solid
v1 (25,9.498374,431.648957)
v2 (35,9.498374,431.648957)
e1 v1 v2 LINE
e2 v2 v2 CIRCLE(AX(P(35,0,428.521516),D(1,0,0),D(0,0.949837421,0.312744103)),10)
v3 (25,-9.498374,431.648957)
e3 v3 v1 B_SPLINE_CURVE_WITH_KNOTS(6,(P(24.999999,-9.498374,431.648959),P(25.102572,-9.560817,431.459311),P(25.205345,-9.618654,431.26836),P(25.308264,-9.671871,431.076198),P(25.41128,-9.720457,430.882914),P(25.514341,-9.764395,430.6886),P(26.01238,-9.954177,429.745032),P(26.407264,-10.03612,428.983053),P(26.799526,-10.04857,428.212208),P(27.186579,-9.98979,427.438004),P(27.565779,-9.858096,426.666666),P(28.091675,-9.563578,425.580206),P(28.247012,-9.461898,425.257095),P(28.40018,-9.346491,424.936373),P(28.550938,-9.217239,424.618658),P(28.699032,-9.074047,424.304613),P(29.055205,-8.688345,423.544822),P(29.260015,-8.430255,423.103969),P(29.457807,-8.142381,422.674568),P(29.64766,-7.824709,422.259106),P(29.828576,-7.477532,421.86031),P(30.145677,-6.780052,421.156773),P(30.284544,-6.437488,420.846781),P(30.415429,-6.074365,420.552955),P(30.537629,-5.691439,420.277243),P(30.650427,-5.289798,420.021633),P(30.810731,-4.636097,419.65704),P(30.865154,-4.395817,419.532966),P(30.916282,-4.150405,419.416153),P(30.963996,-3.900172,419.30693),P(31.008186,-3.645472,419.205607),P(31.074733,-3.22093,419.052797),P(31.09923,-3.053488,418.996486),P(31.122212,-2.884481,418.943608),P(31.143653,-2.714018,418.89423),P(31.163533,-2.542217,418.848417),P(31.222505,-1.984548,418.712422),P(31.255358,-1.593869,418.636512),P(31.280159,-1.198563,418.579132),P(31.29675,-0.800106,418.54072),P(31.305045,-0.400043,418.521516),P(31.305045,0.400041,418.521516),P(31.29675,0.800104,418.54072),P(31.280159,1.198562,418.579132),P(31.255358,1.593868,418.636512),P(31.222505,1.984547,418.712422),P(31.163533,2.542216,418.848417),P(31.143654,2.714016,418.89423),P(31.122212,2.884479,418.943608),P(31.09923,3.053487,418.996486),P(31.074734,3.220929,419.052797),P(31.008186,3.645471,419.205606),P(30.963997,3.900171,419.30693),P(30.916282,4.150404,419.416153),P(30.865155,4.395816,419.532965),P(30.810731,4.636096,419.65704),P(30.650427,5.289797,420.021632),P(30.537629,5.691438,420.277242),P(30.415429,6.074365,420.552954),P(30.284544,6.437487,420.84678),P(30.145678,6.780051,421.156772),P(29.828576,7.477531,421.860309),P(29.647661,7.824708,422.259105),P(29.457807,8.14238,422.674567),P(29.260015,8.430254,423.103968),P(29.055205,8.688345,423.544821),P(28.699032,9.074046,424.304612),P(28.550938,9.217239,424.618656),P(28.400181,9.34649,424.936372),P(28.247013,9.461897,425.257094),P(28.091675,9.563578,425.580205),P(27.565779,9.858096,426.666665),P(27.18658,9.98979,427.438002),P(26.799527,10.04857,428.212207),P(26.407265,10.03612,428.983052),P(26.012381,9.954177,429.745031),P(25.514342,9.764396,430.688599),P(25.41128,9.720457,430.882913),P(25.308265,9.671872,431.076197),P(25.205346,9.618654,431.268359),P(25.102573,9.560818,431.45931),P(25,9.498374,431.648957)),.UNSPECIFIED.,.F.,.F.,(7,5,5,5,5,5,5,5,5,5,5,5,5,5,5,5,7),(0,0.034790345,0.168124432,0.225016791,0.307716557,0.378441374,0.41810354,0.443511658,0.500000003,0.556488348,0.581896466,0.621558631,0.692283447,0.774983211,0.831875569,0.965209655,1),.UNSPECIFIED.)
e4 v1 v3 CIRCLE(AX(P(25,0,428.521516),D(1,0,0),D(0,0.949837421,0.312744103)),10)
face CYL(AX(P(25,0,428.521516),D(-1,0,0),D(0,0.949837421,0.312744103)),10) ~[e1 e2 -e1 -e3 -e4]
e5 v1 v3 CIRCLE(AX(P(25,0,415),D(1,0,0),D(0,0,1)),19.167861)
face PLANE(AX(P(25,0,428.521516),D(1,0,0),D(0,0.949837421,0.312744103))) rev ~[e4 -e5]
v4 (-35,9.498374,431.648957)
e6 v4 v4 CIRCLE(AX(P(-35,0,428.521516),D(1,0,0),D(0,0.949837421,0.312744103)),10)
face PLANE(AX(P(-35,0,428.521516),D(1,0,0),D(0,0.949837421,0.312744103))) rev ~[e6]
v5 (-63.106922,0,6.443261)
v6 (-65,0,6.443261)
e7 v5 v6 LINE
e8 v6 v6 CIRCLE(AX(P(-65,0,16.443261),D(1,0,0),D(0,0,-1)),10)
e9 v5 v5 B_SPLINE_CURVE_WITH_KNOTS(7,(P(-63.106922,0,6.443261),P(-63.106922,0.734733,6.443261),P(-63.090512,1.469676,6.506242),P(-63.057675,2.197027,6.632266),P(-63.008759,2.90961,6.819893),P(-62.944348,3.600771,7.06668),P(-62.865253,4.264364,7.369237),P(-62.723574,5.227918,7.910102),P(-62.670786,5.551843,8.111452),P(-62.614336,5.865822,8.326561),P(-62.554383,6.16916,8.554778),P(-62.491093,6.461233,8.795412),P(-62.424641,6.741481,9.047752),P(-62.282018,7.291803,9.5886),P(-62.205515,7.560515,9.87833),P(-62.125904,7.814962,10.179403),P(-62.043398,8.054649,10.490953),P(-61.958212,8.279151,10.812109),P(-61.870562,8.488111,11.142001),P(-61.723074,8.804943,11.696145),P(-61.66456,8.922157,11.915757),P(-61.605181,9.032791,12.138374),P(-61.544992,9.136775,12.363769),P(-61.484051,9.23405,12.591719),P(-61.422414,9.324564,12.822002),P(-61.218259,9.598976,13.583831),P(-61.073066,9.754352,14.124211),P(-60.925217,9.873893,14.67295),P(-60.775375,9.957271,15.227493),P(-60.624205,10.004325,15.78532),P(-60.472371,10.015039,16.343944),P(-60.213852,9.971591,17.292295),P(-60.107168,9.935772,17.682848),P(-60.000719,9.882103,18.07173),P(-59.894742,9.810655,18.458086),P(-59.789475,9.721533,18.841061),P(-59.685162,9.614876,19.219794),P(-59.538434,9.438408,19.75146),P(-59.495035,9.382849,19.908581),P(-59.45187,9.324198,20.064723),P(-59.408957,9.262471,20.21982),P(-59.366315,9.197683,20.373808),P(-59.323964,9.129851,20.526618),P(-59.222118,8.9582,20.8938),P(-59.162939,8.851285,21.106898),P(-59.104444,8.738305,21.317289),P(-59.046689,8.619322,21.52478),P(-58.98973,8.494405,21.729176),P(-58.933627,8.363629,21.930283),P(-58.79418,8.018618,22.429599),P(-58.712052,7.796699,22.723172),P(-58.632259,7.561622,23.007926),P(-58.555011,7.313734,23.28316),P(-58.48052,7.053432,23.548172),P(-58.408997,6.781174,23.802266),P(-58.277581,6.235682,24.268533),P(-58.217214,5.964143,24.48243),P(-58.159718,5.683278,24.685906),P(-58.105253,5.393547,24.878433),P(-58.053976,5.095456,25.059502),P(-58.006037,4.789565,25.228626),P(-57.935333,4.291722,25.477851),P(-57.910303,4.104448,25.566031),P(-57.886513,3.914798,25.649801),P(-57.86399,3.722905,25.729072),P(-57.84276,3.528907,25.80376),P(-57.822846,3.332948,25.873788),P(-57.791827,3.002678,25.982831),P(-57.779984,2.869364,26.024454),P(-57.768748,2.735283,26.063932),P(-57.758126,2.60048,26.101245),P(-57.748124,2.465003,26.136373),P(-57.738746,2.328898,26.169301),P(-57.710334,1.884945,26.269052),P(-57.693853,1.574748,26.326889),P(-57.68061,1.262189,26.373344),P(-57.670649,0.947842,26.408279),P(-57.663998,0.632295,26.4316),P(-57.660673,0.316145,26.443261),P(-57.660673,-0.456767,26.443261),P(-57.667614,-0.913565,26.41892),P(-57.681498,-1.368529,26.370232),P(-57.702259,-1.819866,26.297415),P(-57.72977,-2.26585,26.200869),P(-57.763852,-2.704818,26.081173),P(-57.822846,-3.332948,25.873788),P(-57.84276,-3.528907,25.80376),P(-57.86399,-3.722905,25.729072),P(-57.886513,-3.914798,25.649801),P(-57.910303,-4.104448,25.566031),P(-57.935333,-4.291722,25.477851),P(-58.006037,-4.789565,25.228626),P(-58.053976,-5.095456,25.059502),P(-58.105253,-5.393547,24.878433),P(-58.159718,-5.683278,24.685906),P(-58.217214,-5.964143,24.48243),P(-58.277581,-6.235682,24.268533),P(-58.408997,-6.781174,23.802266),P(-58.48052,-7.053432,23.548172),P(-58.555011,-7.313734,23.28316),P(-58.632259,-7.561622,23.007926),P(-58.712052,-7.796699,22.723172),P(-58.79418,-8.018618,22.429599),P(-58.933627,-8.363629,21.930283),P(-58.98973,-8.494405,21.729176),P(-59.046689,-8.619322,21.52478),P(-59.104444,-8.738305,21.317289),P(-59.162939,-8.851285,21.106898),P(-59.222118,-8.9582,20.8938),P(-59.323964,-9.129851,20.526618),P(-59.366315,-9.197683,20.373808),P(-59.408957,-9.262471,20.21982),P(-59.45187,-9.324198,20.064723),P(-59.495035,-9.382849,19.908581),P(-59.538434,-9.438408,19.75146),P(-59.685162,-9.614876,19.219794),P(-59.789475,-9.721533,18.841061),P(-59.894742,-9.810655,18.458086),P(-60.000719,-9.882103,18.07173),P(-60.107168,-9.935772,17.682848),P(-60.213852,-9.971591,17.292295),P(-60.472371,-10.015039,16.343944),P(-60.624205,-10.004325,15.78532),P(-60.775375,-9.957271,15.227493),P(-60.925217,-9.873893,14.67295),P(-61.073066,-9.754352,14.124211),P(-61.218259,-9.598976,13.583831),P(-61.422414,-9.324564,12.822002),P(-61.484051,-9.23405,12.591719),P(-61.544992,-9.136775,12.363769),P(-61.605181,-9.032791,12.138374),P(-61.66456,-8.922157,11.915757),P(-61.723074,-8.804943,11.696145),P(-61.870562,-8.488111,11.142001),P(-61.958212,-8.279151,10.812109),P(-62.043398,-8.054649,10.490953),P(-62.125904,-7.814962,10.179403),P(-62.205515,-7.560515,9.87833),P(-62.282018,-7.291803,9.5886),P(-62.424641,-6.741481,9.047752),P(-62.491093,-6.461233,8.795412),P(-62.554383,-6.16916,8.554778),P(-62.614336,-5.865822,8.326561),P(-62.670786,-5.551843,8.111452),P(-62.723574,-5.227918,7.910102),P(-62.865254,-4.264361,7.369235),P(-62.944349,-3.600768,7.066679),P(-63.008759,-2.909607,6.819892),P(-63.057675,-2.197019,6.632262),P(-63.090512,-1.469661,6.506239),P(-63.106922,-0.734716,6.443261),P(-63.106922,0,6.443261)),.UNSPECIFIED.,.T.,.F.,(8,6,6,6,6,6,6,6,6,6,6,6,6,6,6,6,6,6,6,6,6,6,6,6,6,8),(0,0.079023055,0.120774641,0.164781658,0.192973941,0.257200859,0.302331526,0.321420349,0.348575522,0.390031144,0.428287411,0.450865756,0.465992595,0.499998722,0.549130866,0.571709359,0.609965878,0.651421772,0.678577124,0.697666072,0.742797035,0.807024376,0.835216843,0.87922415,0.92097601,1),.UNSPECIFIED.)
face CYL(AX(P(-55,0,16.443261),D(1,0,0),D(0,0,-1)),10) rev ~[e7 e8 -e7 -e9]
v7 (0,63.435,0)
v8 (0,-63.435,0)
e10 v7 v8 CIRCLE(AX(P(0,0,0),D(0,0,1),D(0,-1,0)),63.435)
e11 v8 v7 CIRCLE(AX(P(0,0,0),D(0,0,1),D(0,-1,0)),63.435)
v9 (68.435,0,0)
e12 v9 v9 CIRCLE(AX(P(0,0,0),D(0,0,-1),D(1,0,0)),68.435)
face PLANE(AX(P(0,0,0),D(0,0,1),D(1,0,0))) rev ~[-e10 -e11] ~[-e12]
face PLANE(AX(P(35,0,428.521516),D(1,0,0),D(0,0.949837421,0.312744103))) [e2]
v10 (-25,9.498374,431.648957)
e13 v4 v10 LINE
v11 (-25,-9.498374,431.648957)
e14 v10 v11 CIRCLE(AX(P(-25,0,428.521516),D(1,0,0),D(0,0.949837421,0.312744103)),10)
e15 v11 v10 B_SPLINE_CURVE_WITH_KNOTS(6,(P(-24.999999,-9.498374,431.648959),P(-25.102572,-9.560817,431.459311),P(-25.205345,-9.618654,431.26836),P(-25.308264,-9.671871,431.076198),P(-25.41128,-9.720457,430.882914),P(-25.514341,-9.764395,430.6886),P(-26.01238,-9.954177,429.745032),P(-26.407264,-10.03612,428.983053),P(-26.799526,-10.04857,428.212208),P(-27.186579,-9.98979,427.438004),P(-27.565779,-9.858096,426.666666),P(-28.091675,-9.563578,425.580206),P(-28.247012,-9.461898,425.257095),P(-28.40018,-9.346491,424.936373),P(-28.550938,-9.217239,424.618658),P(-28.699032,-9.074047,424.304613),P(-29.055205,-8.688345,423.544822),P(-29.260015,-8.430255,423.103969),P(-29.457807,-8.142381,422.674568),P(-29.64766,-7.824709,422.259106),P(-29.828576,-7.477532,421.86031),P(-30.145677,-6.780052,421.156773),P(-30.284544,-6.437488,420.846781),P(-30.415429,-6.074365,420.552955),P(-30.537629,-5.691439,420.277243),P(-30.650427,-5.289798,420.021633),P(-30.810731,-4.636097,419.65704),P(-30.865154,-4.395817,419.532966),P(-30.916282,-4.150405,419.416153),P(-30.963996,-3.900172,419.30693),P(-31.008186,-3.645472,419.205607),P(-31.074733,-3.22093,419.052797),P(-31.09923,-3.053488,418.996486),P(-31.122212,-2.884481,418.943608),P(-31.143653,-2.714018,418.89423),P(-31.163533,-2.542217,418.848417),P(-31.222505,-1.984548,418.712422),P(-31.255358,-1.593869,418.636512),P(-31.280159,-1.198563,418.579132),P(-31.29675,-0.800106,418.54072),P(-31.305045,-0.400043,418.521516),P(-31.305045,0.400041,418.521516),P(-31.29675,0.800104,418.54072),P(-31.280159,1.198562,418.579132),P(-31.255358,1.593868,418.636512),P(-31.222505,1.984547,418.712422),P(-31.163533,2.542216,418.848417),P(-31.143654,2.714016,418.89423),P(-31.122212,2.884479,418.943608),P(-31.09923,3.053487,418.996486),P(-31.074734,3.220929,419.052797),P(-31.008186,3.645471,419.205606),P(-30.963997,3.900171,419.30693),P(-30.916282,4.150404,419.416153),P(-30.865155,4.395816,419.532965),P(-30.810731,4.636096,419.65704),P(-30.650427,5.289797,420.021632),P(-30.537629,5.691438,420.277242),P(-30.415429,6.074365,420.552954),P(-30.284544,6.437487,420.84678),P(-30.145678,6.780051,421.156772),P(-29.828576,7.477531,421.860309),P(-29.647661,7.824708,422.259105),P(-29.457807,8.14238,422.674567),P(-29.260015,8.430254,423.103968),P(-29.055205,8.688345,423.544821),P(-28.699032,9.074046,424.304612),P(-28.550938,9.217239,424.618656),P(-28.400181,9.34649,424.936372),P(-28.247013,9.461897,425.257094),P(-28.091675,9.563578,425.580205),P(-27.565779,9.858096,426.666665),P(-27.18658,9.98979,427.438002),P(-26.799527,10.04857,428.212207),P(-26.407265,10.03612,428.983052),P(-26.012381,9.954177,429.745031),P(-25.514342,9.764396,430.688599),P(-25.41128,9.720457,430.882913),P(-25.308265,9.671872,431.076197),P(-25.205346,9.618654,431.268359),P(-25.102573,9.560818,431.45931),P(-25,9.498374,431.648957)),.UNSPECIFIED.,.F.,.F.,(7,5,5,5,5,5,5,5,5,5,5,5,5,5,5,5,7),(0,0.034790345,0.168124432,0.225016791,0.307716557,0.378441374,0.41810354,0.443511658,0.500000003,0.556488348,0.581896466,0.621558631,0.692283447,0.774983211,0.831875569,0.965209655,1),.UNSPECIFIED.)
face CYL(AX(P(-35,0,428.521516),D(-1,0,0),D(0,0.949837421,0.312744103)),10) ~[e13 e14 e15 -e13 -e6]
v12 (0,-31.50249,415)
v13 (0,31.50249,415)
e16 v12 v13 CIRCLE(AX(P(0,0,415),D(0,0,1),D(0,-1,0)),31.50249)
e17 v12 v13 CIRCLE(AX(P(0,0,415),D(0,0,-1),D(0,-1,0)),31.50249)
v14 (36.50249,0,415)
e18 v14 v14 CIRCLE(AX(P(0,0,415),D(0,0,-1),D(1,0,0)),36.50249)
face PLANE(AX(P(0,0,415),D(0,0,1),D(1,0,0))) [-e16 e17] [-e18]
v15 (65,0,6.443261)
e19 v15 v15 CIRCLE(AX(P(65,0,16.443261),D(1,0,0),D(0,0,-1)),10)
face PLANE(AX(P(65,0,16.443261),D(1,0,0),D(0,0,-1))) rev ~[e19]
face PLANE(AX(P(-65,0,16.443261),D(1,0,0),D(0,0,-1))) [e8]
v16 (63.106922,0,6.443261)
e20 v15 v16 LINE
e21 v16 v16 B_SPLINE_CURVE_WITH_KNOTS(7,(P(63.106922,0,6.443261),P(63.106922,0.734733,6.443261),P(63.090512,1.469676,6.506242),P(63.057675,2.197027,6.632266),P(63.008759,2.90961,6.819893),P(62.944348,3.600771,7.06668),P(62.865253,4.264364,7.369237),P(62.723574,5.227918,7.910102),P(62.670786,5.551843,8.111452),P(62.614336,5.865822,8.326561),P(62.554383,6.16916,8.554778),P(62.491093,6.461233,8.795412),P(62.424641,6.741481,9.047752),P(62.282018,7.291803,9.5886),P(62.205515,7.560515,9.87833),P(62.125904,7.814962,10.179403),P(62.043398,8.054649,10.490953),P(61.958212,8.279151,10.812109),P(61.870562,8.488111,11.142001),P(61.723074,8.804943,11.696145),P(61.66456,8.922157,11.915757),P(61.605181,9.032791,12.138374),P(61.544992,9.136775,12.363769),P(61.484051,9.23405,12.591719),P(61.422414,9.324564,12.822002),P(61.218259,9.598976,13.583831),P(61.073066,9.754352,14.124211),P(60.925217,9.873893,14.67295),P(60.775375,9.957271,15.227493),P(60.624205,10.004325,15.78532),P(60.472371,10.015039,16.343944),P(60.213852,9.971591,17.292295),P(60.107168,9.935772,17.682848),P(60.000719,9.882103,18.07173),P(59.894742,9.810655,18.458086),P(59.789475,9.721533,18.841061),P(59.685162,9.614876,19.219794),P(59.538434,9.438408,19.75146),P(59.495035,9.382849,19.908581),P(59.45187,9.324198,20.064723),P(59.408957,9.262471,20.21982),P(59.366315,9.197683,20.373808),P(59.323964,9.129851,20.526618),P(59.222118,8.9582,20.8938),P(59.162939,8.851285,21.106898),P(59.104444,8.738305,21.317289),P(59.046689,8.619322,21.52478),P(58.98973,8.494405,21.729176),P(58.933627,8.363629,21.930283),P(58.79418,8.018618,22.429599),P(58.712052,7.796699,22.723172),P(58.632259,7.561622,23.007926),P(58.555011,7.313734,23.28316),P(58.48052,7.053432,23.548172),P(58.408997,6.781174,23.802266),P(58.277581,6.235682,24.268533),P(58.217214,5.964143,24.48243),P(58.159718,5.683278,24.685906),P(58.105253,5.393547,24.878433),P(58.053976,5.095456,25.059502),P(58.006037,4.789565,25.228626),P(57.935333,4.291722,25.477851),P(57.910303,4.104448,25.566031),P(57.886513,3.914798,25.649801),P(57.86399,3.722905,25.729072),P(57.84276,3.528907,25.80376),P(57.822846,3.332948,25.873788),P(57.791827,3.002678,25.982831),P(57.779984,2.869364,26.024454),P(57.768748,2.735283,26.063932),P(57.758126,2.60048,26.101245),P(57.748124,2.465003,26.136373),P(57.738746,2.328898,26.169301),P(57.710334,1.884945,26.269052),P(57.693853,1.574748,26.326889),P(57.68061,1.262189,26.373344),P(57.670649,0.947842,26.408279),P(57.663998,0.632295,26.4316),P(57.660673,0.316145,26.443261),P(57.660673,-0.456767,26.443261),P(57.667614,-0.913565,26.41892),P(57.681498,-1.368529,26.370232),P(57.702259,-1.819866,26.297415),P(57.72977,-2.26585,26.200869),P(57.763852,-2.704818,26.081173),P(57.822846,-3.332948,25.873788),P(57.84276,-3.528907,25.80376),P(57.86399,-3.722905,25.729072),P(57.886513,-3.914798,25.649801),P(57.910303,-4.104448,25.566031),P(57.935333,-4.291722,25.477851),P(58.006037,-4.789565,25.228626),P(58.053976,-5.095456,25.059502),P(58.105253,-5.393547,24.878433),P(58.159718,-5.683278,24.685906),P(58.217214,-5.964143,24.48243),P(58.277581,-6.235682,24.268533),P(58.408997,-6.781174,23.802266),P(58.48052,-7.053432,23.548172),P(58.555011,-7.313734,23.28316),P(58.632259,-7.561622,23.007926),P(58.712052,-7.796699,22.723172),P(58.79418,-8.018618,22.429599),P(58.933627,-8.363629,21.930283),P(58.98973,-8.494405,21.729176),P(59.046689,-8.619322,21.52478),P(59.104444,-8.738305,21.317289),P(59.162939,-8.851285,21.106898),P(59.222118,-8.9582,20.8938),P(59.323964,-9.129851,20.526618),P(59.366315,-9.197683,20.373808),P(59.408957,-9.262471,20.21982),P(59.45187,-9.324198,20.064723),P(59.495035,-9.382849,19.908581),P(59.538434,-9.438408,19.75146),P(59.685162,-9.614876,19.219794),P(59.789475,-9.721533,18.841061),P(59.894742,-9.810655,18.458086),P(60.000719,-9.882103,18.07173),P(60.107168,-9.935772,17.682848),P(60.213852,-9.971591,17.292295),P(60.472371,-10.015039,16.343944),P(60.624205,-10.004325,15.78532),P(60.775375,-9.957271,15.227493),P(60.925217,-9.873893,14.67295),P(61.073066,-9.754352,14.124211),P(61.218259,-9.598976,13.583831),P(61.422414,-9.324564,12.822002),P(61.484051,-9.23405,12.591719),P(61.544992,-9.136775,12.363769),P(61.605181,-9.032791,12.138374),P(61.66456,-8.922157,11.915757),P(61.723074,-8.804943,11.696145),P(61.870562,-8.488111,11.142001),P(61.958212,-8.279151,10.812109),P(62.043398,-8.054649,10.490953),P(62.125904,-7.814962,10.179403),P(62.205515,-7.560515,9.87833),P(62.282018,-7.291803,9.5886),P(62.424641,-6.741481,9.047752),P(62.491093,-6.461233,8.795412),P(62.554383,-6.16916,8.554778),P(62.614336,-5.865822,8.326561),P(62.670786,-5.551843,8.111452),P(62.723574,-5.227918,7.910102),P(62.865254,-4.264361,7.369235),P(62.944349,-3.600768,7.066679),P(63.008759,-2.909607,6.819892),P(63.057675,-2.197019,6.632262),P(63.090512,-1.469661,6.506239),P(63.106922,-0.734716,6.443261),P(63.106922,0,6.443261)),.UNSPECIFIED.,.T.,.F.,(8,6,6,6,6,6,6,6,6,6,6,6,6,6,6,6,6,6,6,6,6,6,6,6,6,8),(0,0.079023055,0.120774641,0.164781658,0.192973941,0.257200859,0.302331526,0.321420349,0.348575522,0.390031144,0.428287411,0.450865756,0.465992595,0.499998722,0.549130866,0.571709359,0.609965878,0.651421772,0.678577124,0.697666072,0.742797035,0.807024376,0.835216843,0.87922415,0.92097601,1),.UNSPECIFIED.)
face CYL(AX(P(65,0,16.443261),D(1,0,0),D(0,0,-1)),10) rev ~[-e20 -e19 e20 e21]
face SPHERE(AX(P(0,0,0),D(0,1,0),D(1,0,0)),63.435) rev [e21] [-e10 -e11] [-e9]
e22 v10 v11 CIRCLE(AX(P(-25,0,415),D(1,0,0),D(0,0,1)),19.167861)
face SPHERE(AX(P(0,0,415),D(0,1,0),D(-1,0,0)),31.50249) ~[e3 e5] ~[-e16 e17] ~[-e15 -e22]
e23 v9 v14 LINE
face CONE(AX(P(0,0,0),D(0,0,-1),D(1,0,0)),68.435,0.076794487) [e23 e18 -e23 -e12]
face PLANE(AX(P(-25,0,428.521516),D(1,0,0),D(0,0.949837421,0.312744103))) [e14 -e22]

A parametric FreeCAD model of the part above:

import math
import FreeCAD as App
import Part
import Sketcher

V = App.Vector

doc = App.newDocument("Part")
body = doc.addObject("PartDesign::Body", "Body")

# Sketch on XY plane
sketch1 = body.newObject("Sketcher::SketchObject", "Sketch")
sketch1.AttachmentSupport = (doc.getObject("XY_Plane"), [""])
sketch1.MapMode = "FlatFace"
sketch1.addGeometry(Part.Circle(V(0, 0, 0), V(0, 0, 1), 68.435), False)
sketch1.addConstraint([
    Sketcher.Constraint("Coincident", 0, 3, -1, 1),
    Sketcher.Constraint("Diameter", 0, 136.87),
])
pad1 = body.newObject("PartDesign::Pad", "Pad")
pad1.Profile = sketch1
pad1.Length = 415
pad1.TaperAngle = -4.4

# Sketch on XY plane
sketch2 = body.newObject("Sketcher::SketchObject", "Sketch001")
sketch2.AttachmentSupport = (doc.getObject("XY_Plane"), [""])
sketch2.MapMode = "FlatFace"
sketch2.AttachmentOffset = App.Placement(V(0, 0, 415), App.Rotation())
sketch2.addGeometry([
    Part.LineSegment(V(0, -31.50249, 0), V(0, 31.50249, 0)),
    Part.ArcOfCircle(Part.Circle(V(0, 0, 0), V(0, 0, 1), 31.50249), math.radians(90), math.radians(270)),
], False)
sketch2.addConstraint([
    Sketcher.Constraint("Coincident", 0, 1, 1, 2),
    Sketcher.Constraint("Coincident", 1, 1, 0, 2),
    Sketcher.Constraint("Vertical", 0),
    Sketcher.Constraint("Coincident", 1, 3, -1, 1),
    Sketcher.Constraint("PointOnObject", 0, 1, -2),
    Sketcher.Constraint("Radius", 1, 31.50249),
])
revolution = body.newObject("PartDesign::Revolution", "Revolution")
revolution.Profile = sketch2
revolution.ReferenceAxis = (sketch2, ["V_Axis"])
revolution.Angle = 360

# Sketch on XY plane
sketch3 = body.newObject("Sketcher::SketchObject", "Sketch002")
sketch3.AttachmentSupport = (doc.getObject("XY_Plane"), [""])
sketch3.MapMode = "FlatFace"
sketch3.addGeometry([
    Part.LineSegment(V(0, -63.435, 0), V(0, 63.435, 0)),
    Part.ArcOfCircle(Part.Circle(V(0, 0, 0), V(0, 0, 1), 63.435), math.radians(-90), math.radians(90)),
], False)
sketch3.addConstraint([
    Sketcher.Constraint("Coincident", 0, 1, 1, 1),
    Sketcher.Constraint("Coincident", 1, 2, 0, 2),
    Sketcher.Constraint("Vertical", 0),
    Sketcher.Constraint("Coincident", 1, 3, -1, 1),
    Sketcher.Constraint("PointOnObject", 0, 1, -2),
    Sketcher.Constraint("Radius", 1, 63.435),
])
groove = body.newObject("PartDesign::Groove", "Groove")
groove.Profile = sketch3
groove.ReferenceAxis = (sketch3, ["V_Axis"])
groove.Angle = 360

# Sketch on YZ plane
sketch4 = body.newObject("Sketcher::SketchObject", "Sketch003")
sketch4.AttachmentSupport = (doc.getObject("YZ_Plane"), [""])
sketch4.MapMode = "FlatFace"
sketch4.AttachmentOffset = App.Placement(V(0, 0, -55), App.Rotation())
sketch4.addGeometry(Part.Circle(V(0, 16.443261, 0), V(0, 0, 1), 10), False)
sketch4.addConstraint([
    Sketcher.Constraint("PointOnObject", 0, 3, -2),
    Sketcher.Constraint("Diameter", 0, 20.0),
    Sketcher.Constraint("DistanceY", -1, 1, 0, 3, 16.443261),
])
pocket1 = body.newObject("PartDesign::Pocket", "Pocket")
pocket1.Profile = sketch4
pocket1.Length = 10

# Sketch on YZ plane
sketch5 = body.newObject("Sketcher::SketchObject", "Sketch004")
sketch5.AttachmentSupport = (doc.getObject("YZ_Plane"), [""])
sketch5.MapMode = "FlatFace"
sketch5.AttachmentOffset = App.Placement(V(0, 0, 65), App.Rotation())
sketch5.addGeometry(Part.Circle(V(0, 16.443261, 0), V(0, 0, 1), 10), False)
sketch5.addConstraint([
    Sketcher.Constraint("PointOnObject", 0, 3, -2),
    Sketcher.Constraint("Diameter", 0, 20.0),
    Sketcher.Constraint("DistanceY", -1, 1, 0, 3, 16.443261),
])
pocket2 = body.newObject("PartDesign::Pocket", "Pocket001")
pocket2.Profile = sketch5
pocket2.Length = 10

# Sketch on YZ plane
sketch6 = body.newObject("Sketcher::SketchObject", "Sketch005")
sketch6.AttachmentSupport = (doc.getObject("YZ_Plane"), [""])
sketch6.MapMode = "FlatFace"
sketch6.AttachmentOffset = App.Placement(V(0, 0, 25), App.Rotation())
sketch6.addGeometry(Part.Circle(V(0, 428.521516, 0), V(0, 0, 1), 10), False)
sketch6.addConstraint([
    Sketcher.Constraint("PointOnObject", 0, 3, -2),
    Sketcher.Constraint("Diameter", 0, 20.0),
    Sketcher.Constraint("DistanceY", -1, 1, 0, 3, 428.521516),
])
pad2 = body.newObject("PartDesign::Pad", "Pad001")
pad2.Profile = sketch6
pad2.Length = 10

# Sketch on YZ plane
sketch7 = body.newObject("Sketcher::SketchObject", "Sketch006")
sketch7.AttachmentSupport = (doc.getObject("YZ_Plane"), [""])
sketch7.MapMode = "FlatFace"
sketch7.AttachmentOffset = App.Placement(V(0, 0, -35), App.Rotation())
sketch7.addGeometry(Part.Circle(V(0, 428.521516, 0), V(0, 0, 1), 10), False)
sketch7.addConstraint([
    Sketcher.Constraint("PointOnObject", 0, 3, -2),
    Sketcher.Constraint("Diameter", 0, 20.0),
    Sketcher.Constraint("DistanceY", -1, 1, 0, 3, 428.521516),
])
pad3 = body.newObject("PartDesign::Pad", "Pad002")
pad3.Profile = sketch7
pad3.Length = 10

doc.recompute()
